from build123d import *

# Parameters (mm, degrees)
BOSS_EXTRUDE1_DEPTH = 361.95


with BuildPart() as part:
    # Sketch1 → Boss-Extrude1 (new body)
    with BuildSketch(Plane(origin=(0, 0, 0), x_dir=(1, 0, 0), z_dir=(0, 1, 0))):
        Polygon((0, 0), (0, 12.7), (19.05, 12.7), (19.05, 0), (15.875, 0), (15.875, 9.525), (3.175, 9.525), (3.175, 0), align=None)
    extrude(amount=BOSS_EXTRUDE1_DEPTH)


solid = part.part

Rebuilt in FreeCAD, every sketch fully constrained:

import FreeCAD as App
import Part
import Sketcher

V = App.Vector
Q = App.Units.Quantity

doc = App.newDocument("Part")
params = doc.addObject("Spreadsheet::Sheet", "Params")
for row, (alias, value) in enumerate([
    ("sketch1_width", "0.5 in"),
    ("sketch1_width2", "0.75 in"),
    ("sketch1_height", "0.375 in"),
    ("pad1_length", "14.25 in"),
], start=1):
    params.set(f"A{row}", alias)
    params.set(f"B{row}", "=" + value)
    params.setAlias(f"B{row}", alias)

body = doc.addObject("PartDesign::Body", "Body")

sketch1 = body.newObject("Sketcher::SketchObject", "Sketch")
sketch1.AttachmentSupport = (doc.getObject("XZ_Plane"), [""])
sketch1.MapMode = "FlatFace"
sketch1.addGeometry(Part.LineSegment(V(0, -12.7, 0), V(0, 0, 0)), False)
sketch1.addGeometry(Part.LineSegment(V(0, 0, 0), V(3.2, 0, 0)), False)
sketch1.addGeometry(Part.LineSegment(V(3.2, 0, 0), V(3.2, -9.5, 0)), False)
sketch1.addGeometry(Part.LineSegment(V(3.2, -9.5, 0), V(15.9, -9.5, 0)), False)
sketch1.addGeometry(Part.LineSegment(V(15.9, -9.5, 0), V(15.9, 0, 0)), False)
sketch1.addGeometry(Part.LineSegment(V(15.9, 0, 0), V(19.1, 0, 0)), False)
sketch1.addGeometry(Part.LineSegment(V(19.1, 0, 0), V(19.1, -12.7, 0)), False)
sketch1.addGeometry(Part.LineSegment(V(19.1, -12.7, 0), V(0, -12.7, 0)), False)
sketch1.addConstraint(Sketcher.Constraint("Coincident", 0, 2, 1, 1))
sketch1.addConstraint(Sketcher.Constraint("Coincident", 1, 2, 2, 1))
sketch1.addConstraint(Sketcher.Constraint("Coincident", 2, 2, 3, 1))
sketch1.addConstraint(Sketcher.Constraint("Coincident", 3, 2, 4, 1))
sketch1.addConstraint(Sketcher.Constraint("Coincident", 4, 2, 5, 1))
sketch1.addConstraint(Sketcher.Constraint("Coincident", 5, 2, 6, 1))
sketch1.addConstraint(Sketcher.Constraint("Coincident", 6, 2, 7, 1))
sketch1.addConstraint(Sketcher.Constraint("Coincident", 7, 2, 0, 1))
sketch1.addConstraint(Sketcher.Constraint("Vertical", 0))
sketch1.addConstraint(Sketcher.Constraint("Horizontal", 1))
sketch1.addConstraint(Sketcher.Constraint("Vertical", 2))
sketch1.addConstraint(Sketcher.Constraint("Horizontal", 3))
sketch1.addConstraint(Sketcher.Constraint("Vertical", 4))
sketch1.addConstraint(Sketcher.Constraint("Horizontal", 5))
sketch1.addConstraint(Sketcher.Constraint("Vertical", 6))
sketch1.addConstraint(Sketcher.Constraint("Horizontal", 7))
sketch1.addConstraint(Sketcher.Constraint("Coincident", 0, 2, -1, 1))
sketch1.addConstraint(Sketcher.Constraint("PointOnObject", 4, 2, -1))
sketch1.addConstraint(Sketcher.Constraint("Equal", 1, 5))
sketch1.addConstraint(Sketcher.Constraint("Equal", 3, 0))
sketch1.addConstraint(Sketcher.Constraint("DistanceX", 3, 1, 3, 2, Q("0.5 in")))
sketch1.addConstraint(Sketcher.Constraint("DistanceX", 7, 2, 7, 1, Q("0.75 in")))
sketch1.addConstraint(Sketcher.Constraint("DistanceY", 2, 2, 2, 1, Q("0.375 in")))
sketch1.setExpression("Constraints[20]", "Params.sketch1_width")
sketch1.setExpression("Constraints[21]", "Params.sketch1_width2")
sketch1.setExpression("Constraints[22]", "Params.sketch1_height")
pad1 = body.newObject("PartDesign::Pad", "Pad")
pad1.Profile = sketch1
pad1.setExpression("Length", "Params.pad1_length")
pad1.Reversed = True

doc.recompute()
